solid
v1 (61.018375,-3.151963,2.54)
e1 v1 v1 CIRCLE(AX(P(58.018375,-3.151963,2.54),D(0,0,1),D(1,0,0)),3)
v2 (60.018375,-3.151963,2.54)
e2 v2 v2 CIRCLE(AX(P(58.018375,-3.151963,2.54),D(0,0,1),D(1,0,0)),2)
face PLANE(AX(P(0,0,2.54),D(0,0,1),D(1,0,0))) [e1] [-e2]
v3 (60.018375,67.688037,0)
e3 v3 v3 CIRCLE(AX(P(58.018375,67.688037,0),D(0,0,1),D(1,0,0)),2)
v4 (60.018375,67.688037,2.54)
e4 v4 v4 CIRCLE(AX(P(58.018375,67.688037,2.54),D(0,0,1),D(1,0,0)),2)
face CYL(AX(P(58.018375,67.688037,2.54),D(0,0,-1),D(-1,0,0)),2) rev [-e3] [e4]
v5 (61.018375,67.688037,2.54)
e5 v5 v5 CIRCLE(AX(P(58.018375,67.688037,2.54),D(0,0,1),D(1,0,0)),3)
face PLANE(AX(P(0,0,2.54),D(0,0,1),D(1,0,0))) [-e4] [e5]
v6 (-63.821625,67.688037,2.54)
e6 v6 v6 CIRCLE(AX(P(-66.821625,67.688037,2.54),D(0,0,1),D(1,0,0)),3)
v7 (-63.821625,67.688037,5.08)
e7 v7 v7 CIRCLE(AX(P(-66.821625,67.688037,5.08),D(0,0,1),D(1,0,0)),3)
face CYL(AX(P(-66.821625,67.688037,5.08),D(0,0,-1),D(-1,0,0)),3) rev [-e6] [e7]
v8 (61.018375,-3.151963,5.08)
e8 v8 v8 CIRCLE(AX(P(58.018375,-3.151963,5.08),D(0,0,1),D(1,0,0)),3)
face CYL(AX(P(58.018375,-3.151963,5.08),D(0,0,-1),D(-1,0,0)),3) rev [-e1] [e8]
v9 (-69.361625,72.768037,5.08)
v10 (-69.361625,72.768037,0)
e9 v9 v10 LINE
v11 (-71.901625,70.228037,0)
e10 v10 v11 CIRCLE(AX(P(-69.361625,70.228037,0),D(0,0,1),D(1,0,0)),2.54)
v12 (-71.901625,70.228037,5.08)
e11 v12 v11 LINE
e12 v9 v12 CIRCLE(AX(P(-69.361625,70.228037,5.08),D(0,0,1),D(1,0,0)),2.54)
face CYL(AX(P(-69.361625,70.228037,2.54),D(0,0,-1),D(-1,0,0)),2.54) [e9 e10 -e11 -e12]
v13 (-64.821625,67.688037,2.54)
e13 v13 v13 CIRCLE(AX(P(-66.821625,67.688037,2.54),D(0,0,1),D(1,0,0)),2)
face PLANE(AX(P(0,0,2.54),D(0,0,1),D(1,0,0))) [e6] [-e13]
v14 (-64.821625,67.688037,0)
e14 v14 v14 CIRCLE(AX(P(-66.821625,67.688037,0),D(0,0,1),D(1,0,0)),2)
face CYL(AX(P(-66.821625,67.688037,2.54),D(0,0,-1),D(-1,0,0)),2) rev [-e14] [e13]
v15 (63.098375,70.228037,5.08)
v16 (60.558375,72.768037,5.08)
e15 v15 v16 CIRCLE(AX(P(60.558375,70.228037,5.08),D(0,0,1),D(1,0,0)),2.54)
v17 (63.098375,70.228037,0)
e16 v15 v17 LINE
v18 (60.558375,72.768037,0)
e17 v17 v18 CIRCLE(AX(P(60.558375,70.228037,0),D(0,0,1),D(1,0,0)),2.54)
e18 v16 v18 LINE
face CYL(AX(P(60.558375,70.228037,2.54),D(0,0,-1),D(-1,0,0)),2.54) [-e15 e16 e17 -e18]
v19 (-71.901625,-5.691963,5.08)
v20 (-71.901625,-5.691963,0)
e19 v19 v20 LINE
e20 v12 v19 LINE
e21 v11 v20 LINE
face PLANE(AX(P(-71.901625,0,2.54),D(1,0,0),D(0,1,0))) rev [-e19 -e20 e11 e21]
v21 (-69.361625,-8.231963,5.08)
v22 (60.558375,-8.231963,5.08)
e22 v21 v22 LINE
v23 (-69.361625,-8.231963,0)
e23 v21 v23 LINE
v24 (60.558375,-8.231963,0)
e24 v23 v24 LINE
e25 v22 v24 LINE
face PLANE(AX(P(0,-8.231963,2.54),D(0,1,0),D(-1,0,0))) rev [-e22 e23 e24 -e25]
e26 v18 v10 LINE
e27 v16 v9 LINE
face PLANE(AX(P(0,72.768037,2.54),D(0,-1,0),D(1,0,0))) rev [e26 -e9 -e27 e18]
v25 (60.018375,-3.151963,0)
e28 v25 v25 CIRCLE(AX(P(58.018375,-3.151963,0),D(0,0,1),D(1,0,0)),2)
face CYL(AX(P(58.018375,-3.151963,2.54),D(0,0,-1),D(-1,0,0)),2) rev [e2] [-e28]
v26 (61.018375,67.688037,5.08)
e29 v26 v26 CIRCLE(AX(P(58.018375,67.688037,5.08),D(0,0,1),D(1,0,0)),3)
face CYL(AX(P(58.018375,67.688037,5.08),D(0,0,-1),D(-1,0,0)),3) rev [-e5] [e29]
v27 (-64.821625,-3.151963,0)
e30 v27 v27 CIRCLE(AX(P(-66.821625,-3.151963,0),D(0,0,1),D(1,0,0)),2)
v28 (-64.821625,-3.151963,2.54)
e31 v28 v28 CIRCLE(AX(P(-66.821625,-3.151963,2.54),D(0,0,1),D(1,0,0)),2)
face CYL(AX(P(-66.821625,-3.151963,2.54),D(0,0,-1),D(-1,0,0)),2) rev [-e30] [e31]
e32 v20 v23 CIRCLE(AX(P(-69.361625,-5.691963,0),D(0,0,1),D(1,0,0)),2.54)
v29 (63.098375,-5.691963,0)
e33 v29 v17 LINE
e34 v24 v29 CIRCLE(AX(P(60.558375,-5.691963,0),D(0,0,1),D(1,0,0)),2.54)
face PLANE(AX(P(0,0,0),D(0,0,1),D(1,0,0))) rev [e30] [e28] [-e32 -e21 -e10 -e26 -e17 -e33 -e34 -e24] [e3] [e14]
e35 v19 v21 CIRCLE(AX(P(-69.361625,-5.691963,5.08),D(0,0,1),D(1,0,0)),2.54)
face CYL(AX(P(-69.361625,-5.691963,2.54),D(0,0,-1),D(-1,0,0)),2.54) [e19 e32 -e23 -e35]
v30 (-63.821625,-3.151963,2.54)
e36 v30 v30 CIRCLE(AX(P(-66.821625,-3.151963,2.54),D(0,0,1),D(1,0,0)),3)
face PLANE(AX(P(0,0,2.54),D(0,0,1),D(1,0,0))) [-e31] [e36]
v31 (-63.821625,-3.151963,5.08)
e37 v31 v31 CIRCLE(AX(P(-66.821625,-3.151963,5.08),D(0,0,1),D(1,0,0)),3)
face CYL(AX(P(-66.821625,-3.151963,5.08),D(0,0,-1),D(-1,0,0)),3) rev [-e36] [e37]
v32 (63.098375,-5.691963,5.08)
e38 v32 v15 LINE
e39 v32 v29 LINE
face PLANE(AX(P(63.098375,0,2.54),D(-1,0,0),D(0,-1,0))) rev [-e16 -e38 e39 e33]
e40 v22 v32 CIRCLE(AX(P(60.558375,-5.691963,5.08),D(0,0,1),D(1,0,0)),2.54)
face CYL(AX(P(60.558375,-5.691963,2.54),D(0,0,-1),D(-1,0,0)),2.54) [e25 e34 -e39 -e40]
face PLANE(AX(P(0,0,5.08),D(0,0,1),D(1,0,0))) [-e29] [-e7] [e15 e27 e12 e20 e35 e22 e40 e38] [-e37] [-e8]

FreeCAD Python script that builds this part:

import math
import FreeCAD as App
import Part
import Sketcher

V = App.Vector
Q = App.Units.Quantity

doc = App.newDocument("Part")
body = doc.addObject("PartDesign::Body", "Body")

# Sketch on XY plane
sketch1 = doc.addObject("Sketcher::SketchObject", "Sketch")
body.addObject(sketch1)
sketch1.AttachmentSupport = (doc.XY_Plane, [""])
sketch1.MapMode = "FlatFace"
sketch1.addGeometry([
    Part.LineSegment(V(-71.901625, 70.228037, 0), V(-71.901625, -5.691963, 0)),  # 0
    Part.ArcOfCircle(Part.Circle(V(-69.361625, -5.691963, 0), V(0, 0, 1), 2.54), math.radians(-180), math.radians(-90)),  # 1
    Part.LineSegment(V(-69.361625, -8.231963, 0), V(60.558375, -8.231963, 0)),  # 2
    Part.ArcOfCircle(Part.Circle(V(60.558375, -5.691963, 0), V(0, 0, 1), 2.54), math.radians(-90), math.radians(0)),  # 3
    Part.LineSegment(V(63.098375, -5.691963, 0), V(63.098375, 70.228037, 0)),  # 4
    Part.ArcOfCircle(Part.Circle(V(60.558375, 70.228037, 0), V(0, 0, 1), 2.54), math.radians(0), math.radians(90)),  # 5
    Part.LineSegment(V(60.558375, 72.768037, 0), V(-69.361625, 72.768037, 0)),  # 6
    Part.ArcOfCircle(Part.Circle(V(-69.361625, 70.228037, 0), V(0, 0, 1), 2.54), math.radians(90), math.radians(180)),  # 7
    Part.Circle(V(-66.821625, -3.151963, 0), V(0, 0, 1), 2),  # 8
    Part.Circle(V(58.018375, -3.151963, 0), V(0, 0, 1), 2),  # 9
    Part.Circle(V(-66.821625, 67.688037, 0), V(0, 0, 1), 2),  # 10
    Part.Circle(V(58.018375, 67.688037, 0), V(0, 0, 1), 2),  # 11
], False)
sketch1.addConstraint([
    Sketcher.Constraint("Tangent", 0, 2, 1, 1),
    Sketcher.Constraint("Tangent", 1, 2, 2, 1),
    Sketcher.Constraint("Tangent", 2, 2, 3, 1),
    Sketcher.Constraint("Tangent", 3, 2, 4, 1),
    Sketcher.Constraint("Tangent", 4, 2, 5, 1),
    Sketcher.Constraint("Tangent", 5, 2, 6, 1),
    Sketcher.Constraint("Tangent", 6, 2, 7, 1),
    Sketcher.Constraint("Tangent", 7, 2, 0, 1),
    Sketcher.Constraint("Vertical", 0),
    Sketcher.Constraint("Horizontal", 2),
    Sketcher.Constraint("Vertical", 4),
    Sketcher.Constraint("Horizontal", 6),
    Sketcher.Constraint("Equal", 1, 3),
    Sketcher.Constraint("Equal", 3, 5),
    Sketcher.Constraint("Equal", 5, 7),
    Sketcher.Constraint("Equal", 8, 9),
    Sketcher.Constraint("Equal", 9, 10),
    Sketcher.Constraint("Equal", 10, 11),
    Sketcher.Constraint("Horizontal", 8, 3, 9, 3),
    Sketcher.Constraint("Horizontal", 10, 3, 11, 3),
    Sketcher.Constraint("Vertical", 8, 3, 10, 3),
    Sketcher.Constraint("Vertical", 9, 3, 11, 3),
    Sketcher.Constraint("Diameter", 8, Q("4 mm")),
    Sketcher.Constraint("Radius", 1, Q("2.54 mm")),
    Sketcher.Constraint("DistanceX", 2, 1, 2, 2, Q("129.92 mm")),
    Sketcher.Constraint("DistanceY", 0, 2, 0, 1, Q("75.92 mm")),
    Sketcher.Constraint("DistanceX", 1, 3, 8, 3, Q("2.54 mm")),
    Sketcher.Constraint("DistanceY", 1, 3, 8, 3, Q("2.54 mm")),
    Sketcher.Constraint("DistanceX", 9, 3, 3, 3, Q("2.54 mm")),
    Sketcher.Constraint("DistanceY", 10, 3, 7, 3, Q("2.54 mm")),
    Sketcher.Constraint("DistanceX", 1, 3, -1, 1, Q("69.361625 mm")),
    Sketcher.Constraint("DistanceY", 1, 3, -1, 1, Q("5.691963 mm")),
])
pad1 = doc.addObject("PartDesign::Pad", "Pad")
body.addObject(pad1)
pad1.Profile = sketch1
pad1.Length = 2.54

# Sketch on XY plane
sketch2 = doc.addObject("Sketcher::SketchObject", "Sketch001")
body.addObject(sketch2)
sketch2.AttachmentSupport = (doc.XY_Plane, [""])
sketch2.MapMode = "FlatFace"
sketch2.AttachmentOffset = App.Placement(V(0, 0, 2.54), App.Rotation())
sketch2.addGeometry([
    Part.LineSegment(V(63.098375, -5.691963, 0), V(63.098375, 70.228037, 0)),  # 0
    Part.ArcOfCircle(Part.Circle(V(60.558375, 70.228037, 0), V(0, 0, 1), 2.54), math.radians(0), math.radians(90)),  # 1
    Part.LineSegment(V(60.558375, 72.768037, 0), V(-69.361625, 72.768037, 0)),  # 2
    Part.ArcOfCircle(Part.Circle(V(-69.361625, 70.228037, 0), V(0, 0, 1), 2.54), math.radians(90), math.radians(180)),  # 3
    Part.LineSegment(V(-71.901625, 70.228037, 0), V(-71.901625, -5.691963, 0)),  # 4
    Part.ArcOfCircle(Part.Circle(V(-69.361625, -5.691963, 0), V(0, 0, 1), 2.54), math.radians(-180), math.radians(-90)),  # 5
    Part.LineSegment(V(-69.361625, -8.231963, 0), V(60.558375, -8.231963, 0)),  # 6
    Part.ArcOfCircle(Part.Circle(V(60.558375, -5.691963, 0), V(0, 0, 1), 2.54), math.radians(-90), math.radians(0)),  # 7
    Part.Circle(V(-66.821625, -3.151963, 0), V(0, 0, 1), 3),  # 8
    Part.Circle(V(58.018375, -3.151963, 0), V(0, 0, 1), 3),  # 9
    Part.Circle(V(-66.821625, 67.688037, 0), V(0, 0, 1), 3),  # 10
    Part.Circle(V(58.018375, 67.688037, 0), V(0, 0, 1), 3),  # 11
], False)
sketch2.addConstraint([
    Sketcher.Constraint("Tangent", 0, 2, 1, 1),
    Sketcher.Constraint("Tangent", 1, 2, 2, 1),
    Sketcher.Constraint("Tangent", 2, 2, 3, 1),
    Sketcher.Constraint("Tangent", 3, 2, 4, 1),
    Sketcher.Constraint("Tangent", 4, 2, 5, 1),
    Sketcher.Constraint("Tangent", 5, 2, 6, 1),
    Sketcher.Constraint("Tangent", 6, 2, 7, 1),
    Sketcher.Constraint("Tangent", 7, 2, 0, 1),
    Sketcher.Constraint("Vertical", 0),
    Sketcher.Constraint("Horizontal", 2),
    Sketcher.Constraint("Vertical", 4),
    Sketcher.Constraint("Horizontal", 6),
    Sketcher.Constraint("Equal", 1, 3),
    Sketcher.Constraint("Equal", 3, 5),
    Sketcher.Constraint("Equal", 5, 7),
    Sketcher.Constraint("Equal", 8, 9),
    Sketcher.Constraint("Equal", 9, 10),
    Sketcher.Constraint("Equal", 10, 11),
    Sketcher.Constraint("Horizontal", 8, 3, 9, 3),
    Sketcher.Constraint("Horizontal", 10, 3, 11, 3),
    Sketcher.Constraint("Vertical", 8, 3, 10, 3),
    Sketcher.Constraint("Vertical", 9, 3, 11, 3),
    Sketcher.Constraint("Diameter", 8, Q("6 mm")),
    Sketcher.Constraint("Radius", 1, Q("2.54 mm")),
    Sketcher.Constraint("DistanceX", 2, 2, 2, 1, Q("129.92 mm")),
    Sketcher.Constraint("DistanceY", 0, 1, 0, 2, Q("75.92 mm")),
    Sketcher.Constraint("DistanceX", 5, 3, 8, 3, Q("2.54 mm")),
    Sketcher.Constraint("DistanceY", 5, 3, 8, 3, Q("2.54 mm")),
    Sketcher.Constraint("DistanceX", 9, 3, 7, 3, Q("2.54 mm")),
    Sketcher.Constraint("DistanceY", 10, 3, 3, 3, Q("2.54 mm")),
    Sketcher.Constraint("DistanceX", -1, 1, 1, 3, Q("60.558375 mm")),
    Sketcher.Constraint("DistanceY", -1, 1, 1, 3, Q("70.228037 mm")),
])
pad2 = doc.addObject("PartDesign::Pad", "Pad001")
body.addObject(pad2)
pad2.Profile = sketch2
pad2.Length = 2.54

doc.recompute()
